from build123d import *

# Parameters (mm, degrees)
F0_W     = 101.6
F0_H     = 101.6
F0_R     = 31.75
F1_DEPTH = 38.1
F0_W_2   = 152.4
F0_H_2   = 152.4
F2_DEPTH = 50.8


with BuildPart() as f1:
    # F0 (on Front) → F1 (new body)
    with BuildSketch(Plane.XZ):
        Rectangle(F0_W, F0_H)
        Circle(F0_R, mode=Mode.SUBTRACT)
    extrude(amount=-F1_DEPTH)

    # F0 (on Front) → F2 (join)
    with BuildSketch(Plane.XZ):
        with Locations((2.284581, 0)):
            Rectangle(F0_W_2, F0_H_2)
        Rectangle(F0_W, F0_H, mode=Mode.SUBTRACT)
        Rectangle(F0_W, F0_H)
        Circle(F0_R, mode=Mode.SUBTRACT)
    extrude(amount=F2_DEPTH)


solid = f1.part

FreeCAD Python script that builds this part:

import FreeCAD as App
import Part
import Sketcher
from FreeCAD import Vector
Q = App.Units.Quantity

doc = App.newDocument("Part")
body = doc.addObject("PartDesign::Body", "Body")

# Sketch on XZ plane
sketch1 = body.newObject("Sketcher::SketchObject", "Sketch")
sketch1.AttachmentSupport = (doc.getObject("XZ_Plane"), [""])
sketch1.MapMode = "FlatFace"
sketch1.addGeometry(Part.LineSegment(Vector(-50.8, 50.8, 0), Vector(-50.8, -50.8, 0)), False)
sketch1.addGeometry(Part.LineSegment(Vector(-50.8, -50.8, 0), Vector(50.8, -50.8, 0)), False)
sketch1.addGeometry(Part.LineSegment(Vector(50.8, -50.8, 0), Vector(50.8, 50.8, 0)), False)
sketch1.addGeometry(Part.LineSegment(Vector(50.8, 50.8, 0), Vector(-50.8, 50.8, 0)), False)
sketch1.addGeometry(Part.Circle(Vector(0, 0, 0), Vector(0, 0, 1), 31.75), False)
sketch1.addConstraint(Sketcher.Constraint("Coincident", 0, 2, 1, 1))
sketch1.addConstraint(Sketcher.Constraint("Coincident", 1, 2, 2, 1))
sketch1.addConstraint(Sketcher.Constraint("Coincident", 2, 2, 3, 1))
sketch1.addConstraint(Sketcher.Constraint("Coincident", 3, 2, 0, 1))
sketch1.addConstraint(Sketcher.Constraint("Vertical", 0))
sketch1.addConstraint(Sketcher.Constraint("Horizontal", 1))
sketch1.addConstraint(Sketcher.Constraint("Vertical", 2))
sketch1.addConstraint(Sketcher.Constraint("Horizontal", 3))
sketch1.addConstraint(Sketcher.Constraint("Coincident", 4, 3, -1, 1))
sketch1.addConstraint(Sketcher.Constraint("Symmetric", 0, 2, 2, 2, -1, 1))
sketch1.addConstraint(Sketcher.Constraint("Equal", 3, 0))
sketch1.addConstraint(Sketcher.Constraint("Diameter", 4, Q("2.5 in")))
sketch1.addConstraint(Sketcher.Constraint("DistanceX", 1, 1, 1, 2, Q("4 in")))
pad1 = body.newObject("PartDesign::Pad", "Pad")
pad1.Profile = sketch1
pad1.Length = Q("1.5 in")
pad1.Reversed = True

# Sketch on XZ plane
sketch2 = body.newObject("Sketcher::SketchObject", "Sketch001")
sketch2.AttachmentSupport = (doc.getObject("XZ_Plane"), [""])
sketch2.MapMode = "FlatFace"
sketch2.addGeometry(Part.LineSegment(Vector(-73.915419, 76.2, 0), Vector(-73.915419, -76.2, 0)), False)
sketch2.addGeometry(Part.LineSegment(Vector(-73.915419, -76.2, 0), Vector(78.484581, -76.2, 0)), False)
sketch2.addGeometry(Part.LineSegment(Vector(78.484581, -76.2, 0), Vector(78.484581, 76.2, 0)), False)
sketch2.addGeometry(Part.LineSegment(Vector(78.484581, 76.2, 0), Vector(-73.915419, 76.2, 0)), False)
sketch2.addGeometry(Part.Circle(Vector(0, 0, 0), Vector(0, 0, 1), 31.75), False)
sketch2.addConstraint(Sketcher.Constraint("Coincident", 0, 2, 1, 1))
sketch2.addConstraint(Sketcher.Constraint("Coincident", 1, 2, 2, 1))
sketch2.addConstraint(Sketcher.Constraint("Coincident", 2, 2, 3, 1))
sketch2.addConstraint(Sketcher.Constraint("Coincident", 3, 2, 0, 1))
sketch2.addConstraint(Sketcher.Constraint("Vertical", 0))
sketch2.addConstraint(Sketcher.Constraint("Horizontal", 1))
sketch2.addConstraint(Sketcher.Constraint("Vertical", 2))
sketch2.addConstraint(Sketcher.Constraint("Horizontal", 3))
sketch2.addConstraint(Sketcher.Constraint("Coincident", 4, 3, -1, 1))
sketch2.addConstraint(Sketcher.Constraint("Equal", 3, 0))
sketch2.addConstraint(Sketcher.Constraint("Diameter", 4, Q("2.5 in")))
sketch2.addConstraint(Sketcher.Constraint("DistanceX", 1, 1, 1, 2, Q("6 in")))
sketch2.addConstraint(Sketcher.Constraint("DistanceY", 0, 2, -1, 1, Q("3 in")))
sketch2.addConstraint(Sketcher.Constraint("DistanceX", 0, 2, -1, 1, Q("73.915419 mm")))
pad2 = body.newObject("PartDesign::Pad", "Pad001")
pad2.Profile = sketch2
pad2.Length = Q("2 in")

doc.recompute()
